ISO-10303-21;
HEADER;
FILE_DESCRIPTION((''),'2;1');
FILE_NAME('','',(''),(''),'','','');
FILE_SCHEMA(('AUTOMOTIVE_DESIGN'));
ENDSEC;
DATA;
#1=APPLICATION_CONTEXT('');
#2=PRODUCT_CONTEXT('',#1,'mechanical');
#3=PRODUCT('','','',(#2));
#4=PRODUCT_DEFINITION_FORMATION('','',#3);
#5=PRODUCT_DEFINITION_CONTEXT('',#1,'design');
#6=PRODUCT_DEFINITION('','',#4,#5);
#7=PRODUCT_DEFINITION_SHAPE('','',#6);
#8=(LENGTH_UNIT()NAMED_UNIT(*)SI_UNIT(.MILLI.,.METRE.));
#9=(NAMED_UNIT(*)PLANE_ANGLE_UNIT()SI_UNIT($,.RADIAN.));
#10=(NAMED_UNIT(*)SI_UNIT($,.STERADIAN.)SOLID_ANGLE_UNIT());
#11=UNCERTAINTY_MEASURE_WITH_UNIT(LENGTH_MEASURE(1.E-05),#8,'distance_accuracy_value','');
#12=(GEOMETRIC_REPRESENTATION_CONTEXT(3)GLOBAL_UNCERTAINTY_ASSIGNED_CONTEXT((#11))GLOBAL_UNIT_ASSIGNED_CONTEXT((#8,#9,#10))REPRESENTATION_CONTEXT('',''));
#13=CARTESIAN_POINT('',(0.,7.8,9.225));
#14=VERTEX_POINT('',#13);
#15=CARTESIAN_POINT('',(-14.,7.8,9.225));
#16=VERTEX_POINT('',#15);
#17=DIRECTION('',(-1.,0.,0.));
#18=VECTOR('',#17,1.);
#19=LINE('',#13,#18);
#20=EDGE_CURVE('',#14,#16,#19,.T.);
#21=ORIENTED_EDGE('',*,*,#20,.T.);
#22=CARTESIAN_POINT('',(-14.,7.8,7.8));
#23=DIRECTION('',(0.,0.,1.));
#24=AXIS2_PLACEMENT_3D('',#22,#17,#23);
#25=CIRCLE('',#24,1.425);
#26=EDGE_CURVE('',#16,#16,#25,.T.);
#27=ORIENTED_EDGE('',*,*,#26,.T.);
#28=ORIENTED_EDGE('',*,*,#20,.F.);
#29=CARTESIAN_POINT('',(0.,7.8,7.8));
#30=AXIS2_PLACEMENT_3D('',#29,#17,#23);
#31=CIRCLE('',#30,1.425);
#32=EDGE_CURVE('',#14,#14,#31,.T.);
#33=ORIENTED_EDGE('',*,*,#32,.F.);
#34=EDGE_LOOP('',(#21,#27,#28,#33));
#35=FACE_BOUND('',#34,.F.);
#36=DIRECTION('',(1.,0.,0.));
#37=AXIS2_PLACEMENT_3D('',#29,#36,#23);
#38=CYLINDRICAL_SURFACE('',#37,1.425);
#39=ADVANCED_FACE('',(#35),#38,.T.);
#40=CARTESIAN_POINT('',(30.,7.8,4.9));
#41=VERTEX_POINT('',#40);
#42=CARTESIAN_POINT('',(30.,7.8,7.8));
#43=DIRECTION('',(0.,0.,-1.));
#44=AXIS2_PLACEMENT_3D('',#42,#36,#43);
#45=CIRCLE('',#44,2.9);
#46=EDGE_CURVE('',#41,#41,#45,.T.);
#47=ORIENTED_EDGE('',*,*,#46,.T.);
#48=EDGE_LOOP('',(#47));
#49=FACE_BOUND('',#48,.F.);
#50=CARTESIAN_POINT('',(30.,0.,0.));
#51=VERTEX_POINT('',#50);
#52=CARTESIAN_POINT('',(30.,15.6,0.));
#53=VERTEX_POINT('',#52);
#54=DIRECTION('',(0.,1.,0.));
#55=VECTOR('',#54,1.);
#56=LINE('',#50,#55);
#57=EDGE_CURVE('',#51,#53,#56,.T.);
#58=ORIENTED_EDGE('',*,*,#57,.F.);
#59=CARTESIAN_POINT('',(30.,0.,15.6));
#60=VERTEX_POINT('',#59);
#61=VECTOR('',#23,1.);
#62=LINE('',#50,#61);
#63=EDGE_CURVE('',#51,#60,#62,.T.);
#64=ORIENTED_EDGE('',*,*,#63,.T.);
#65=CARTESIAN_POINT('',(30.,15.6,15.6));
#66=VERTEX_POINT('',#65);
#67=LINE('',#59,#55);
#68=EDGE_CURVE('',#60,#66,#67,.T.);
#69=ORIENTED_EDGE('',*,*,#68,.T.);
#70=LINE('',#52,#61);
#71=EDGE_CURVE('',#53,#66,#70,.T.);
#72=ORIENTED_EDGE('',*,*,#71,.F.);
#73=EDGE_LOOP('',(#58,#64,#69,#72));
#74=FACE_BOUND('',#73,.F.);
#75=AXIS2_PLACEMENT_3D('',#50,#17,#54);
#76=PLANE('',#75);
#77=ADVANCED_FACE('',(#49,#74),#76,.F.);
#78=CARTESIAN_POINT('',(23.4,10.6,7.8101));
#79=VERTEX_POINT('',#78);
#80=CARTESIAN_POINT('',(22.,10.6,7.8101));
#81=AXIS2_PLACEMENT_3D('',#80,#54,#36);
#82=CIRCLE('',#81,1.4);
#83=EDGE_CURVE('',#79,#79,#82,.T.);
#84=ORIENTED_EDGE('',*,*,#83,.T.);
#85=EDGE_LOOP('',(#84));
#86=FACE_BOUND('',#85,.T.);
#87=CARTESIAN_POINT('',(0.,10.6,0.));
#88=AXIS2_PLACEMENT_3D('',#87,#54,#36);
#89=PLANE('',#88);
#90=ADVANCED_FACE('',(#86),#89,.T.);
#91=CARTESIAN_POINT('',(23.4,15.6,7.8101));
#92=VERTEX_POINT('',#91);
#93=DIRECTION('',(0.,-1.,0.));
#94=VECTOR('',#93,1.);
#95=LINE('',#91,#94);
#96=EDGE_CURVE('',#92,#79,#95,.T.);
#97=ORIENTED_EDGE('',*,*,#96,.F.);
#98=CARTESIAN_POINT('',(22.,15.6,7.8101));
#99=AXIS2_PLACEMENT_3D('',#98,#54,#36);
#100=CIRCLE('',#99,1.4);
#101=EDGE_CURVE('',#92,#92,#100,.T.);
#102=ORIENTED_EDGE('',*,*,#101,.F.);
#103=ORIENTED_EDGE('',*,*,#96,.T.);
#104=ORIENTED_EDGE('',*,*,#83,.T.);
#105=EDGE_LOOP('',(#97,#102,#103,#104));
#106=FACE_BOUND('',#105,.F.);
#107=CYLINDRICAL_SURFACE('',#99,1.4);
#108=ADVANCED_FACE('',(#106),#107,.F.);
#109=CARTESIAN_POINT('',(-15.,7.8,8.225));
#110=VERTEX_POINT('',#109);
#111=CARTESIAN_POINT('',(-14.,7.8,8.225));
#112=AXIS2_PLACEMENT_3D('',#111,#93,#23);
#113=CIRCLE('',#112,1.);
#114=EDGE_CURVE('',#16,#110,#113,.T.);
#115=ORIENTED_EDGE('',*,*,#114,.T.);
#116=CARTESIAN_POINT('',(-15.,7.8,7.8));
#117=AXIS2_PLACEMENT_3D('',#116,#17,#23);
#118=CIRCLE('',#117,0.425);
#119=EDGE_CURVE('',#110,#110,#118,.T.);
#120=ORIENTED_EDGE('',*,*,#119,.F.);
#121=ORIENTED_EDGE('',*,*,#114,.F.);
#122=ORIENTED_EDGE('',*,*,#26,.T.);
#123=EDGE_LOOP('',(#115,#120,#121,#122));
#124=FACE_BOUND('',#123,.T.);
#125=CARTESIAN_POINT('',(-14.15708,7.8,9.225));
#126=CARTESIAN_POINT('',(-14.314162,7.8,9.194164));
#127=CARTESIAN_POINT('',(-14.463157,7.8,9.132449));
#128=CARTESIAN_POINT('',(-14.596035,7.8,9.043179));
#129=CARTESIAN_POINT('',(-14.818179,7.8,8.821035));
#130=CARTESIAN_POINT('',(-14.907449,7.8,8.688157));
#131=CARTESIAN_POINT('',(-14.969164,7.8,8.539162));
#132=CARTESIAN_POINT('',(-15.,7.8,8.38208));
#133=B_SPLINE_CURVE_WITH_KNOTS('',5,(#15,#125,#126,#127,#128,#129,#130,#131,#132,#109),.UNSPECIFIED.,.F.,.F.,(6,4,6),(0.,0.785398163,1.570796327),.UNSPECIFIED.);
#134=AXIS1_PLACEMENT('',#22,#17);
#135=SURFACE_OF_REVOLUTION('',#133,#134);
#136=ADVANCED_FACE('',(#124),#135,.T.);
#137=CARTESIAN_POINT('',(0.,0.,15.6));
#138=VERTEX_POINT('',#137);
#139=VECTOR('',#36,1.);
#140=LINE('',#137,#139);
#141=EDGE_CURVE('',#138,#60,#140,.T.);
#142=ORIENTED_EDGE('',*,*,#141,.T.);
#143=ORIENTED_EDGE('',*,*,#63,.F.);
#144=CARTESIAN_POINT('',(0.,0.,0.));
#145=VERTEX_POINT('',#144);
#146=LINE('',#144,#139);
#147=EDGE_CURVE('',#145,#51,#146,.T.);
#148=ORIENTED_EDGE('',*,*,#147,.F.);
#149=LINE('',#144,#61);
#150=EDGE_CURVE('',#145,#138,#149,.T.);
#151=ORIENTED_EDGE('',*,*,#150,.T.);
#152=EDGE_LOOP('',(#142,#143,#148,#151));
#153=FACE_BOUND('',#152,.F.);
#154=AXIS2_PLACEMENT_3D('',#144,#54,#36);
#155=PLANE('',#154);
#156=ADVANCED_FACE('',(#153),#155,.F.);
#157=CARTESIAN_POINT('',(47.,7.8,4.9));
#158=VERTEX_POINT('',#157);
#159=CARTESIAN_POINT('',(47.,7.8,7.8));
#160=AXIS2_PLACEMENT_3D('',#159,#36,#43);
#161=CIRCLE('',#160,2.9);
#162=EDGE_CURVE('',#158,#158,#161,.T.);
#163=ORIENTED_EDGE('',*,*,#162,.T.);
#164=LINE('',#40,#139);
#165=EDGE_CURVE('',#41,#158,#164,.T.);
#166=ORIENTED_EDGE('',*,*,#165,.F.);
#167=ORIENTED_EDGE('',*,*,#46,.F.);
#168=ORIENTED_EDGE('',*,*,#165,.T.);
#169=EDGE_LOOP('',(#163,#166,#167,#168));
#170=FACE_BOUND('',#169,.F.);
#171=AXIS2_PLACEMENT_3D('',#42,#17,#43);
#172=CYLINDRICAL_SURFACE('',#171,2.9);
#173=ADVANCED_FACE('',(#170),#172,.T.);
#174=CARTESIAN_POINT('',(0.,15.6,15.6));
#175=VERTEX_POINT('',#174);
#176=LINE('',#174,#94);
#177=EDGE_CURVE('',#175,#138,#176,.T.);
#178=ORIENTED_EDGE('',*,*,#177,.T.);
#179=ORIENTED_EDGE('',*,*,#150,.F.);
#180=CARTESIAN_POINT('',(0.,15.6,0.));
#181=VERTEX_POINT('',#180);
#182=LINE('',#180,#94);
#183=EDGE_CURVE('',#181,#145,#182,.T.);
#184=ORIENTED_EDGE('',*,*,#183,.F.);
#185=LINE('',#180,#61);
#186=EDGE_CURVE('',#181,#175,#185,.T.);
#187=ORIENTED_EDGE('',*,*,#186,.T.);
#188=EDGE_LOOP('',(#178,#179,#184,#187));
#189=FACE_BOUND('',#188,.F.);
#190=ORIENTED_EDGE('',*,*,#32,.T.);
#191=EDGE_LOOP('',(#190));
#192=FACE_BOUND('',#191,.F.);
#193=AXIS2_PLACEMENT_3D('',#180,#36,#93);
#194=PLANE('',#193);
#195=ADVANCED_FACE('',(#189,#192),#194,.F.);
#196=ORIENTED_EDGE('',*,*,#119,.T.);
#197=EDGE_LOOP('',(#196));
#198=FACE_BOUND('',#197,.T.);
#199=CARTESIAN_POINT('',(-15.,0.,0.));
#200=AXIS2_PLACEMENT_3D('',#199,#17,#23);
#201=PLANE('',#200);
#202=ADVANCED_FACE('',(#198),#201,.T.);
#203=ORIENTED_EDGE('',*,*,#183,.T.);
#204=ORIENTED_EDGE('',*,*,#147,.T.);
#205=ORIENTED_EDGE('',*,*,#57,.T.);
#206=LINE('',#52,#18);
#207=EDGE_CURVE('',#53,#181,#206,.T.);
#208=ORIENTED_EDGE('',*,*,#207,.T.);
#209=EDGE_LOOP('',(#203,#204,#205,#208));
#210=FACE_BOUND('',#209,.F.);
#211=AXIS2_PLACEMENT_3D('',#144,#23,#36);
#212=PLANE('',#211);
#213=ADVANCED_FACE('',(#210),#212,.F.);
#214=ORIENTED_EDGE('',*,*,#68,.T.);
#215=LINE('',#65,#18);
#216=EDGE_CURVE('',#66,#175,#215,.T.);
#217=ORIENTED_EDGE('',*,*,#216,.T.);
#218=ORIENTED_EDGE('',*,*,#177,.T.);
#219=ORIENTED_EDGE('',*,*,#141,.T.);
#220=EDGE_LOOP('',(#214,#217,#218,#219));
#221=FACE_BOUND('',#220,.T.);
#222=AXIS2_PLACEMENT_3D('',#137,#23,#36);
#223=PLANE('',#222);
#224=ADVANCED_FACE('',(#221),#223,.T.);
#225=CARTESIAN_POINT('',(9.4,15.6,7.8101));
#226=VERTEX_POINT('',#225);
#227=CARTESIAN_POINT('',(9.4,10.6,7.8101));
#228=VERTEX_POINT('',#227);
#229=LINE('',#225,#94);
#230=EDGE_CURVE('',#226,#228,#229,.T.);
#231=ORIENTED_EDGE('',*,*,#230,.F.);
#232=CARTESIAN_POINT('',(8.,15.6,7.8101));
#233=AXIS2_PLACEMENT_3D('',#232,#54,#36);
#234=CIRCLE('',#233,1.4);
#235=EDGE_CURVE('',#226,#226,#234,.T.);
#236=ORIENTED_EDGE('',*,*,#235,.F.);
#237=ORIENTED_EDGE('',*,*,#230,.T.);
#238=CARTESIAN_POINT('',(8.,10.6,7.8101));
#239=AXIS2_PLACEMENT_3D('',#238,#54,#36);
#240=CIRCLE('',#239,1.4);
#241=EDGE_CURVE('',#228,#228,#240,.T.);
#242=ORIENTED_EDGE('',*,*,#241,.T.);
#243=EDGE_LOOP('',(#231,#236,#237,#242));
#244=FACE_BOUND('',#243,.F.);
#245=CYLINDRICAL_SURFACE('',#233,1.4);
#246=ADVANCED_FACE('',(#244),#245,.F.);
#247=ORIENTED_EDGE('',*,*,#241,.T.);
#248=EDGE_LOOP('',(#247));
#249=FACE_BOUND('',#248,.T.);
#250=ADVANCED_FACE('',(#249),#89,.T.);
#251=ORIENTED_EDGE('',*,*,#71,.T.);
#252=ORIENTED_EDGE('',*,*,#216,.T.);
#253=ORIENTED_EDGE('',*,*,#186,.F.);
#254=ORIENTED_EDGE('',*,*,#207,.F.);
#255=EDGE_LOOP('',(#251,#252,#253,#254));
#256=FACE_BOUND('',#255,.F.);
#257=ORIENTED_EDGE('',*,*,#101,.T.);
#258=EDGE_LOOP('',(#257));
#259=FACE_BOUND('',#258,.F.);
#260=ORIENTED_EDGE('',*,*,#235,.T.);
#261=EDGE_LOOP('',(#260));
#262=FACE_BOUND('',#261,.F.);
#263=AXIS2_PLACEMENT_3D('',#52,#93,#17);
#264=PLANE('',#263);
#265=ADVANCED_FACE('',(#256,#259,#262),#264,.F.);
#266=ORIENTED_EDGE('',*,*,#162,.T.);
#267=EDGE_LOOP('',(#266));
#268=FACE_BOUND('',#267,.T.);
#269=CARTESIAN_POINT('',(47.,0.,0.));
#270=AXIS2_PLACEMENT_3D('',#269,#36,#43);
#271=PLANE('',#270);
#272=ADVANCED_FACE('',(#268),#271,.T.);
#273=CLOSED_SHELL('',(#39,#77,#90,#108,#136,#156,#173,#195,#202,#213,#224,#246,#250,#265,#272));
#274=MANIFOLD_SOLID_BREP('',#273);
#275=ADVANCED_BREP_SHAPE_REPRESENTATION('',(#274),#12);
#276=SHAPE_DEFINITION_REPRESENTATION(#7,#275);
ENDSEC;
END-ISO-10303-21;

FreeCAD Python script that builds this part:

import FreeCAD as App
import Part
import Sketcher

V = App.Vector


def edges_at(feature, points):
    """Names of the edges that pass closest to the given points."""
    edges = feature.Shape.Edges
    near = lambda p: min(range(len(edges)), key=lambda i: edges[i].distToShape(Part.Vertex(*p))[0])
    return sorted({f"Edge{near(p) + 1}" for p in points})


def add_polygon(sketch, points):
    """Adds a closed chain of lines whose ends are joined by coincident constraints."""
    first, n = sketch.GeometryCount, len(points)
    for a, b in zip(points, points[1:] + points[:1]):
        sketch.addGeometry(Part.LineSegment(App.Vector(*a, 0), App.Vector(*b, 0)), False)
    for i in range(n):
        sketch.addConstraint(Sketcher.Constraint("Coincident", first + i, 2, first + (i + 1) % n, 1))

doc = App.newDocument("Part")
body = doc.addObject("PartDesign::Body", "Body")

sketch1 = doc.addObject("Sketcher::SketchObject", "Sketch")
body.addObject(sketch1)
sketch1.AttachmentSupport = (doc.XY_Plane, [""])
sketch1.MapMode = "FlatFace"
add_polygon(sketch1, [(0, 16), (0, 0), (30, 0), (30, 16)])
sketch1.addConstraint([
    Sketcher.Constraint("Vertical", 0),
    Sketcher.Constraint("Horizontal", 1),
    Sketcher.Constraint("Vertical", 2),
    Sketcher.Constraint("Horizontal", 3),
    Sketcher.Constraint("Coincident", 0, 2, -1, 1),
    Sketcher.Constraint("DistanceX", 1, 1, 1, 2, 30.0),
    Sketcher.Constraint("DistanceY", 0, 2, 0, 1, 15.6),
])
pad1 = doc.addObject("PartDesign::Pad", "Pad")
body.addObject(pad1)
pad1.Profile = sketch1
pad1.Length = 15.6

sketch2 = doc.addObject("Sketcher::SketchObject", "Sketch001")
body.addObject(sketch2)
sketch2.AttachmentSupport = (doc.YZ_Plane, [""])
sketch2.MapMode = "FlatFace"
sketch2.AttachmentOffset = App.Placement(V(0, 0, 30), App.Rotation())
sketch2.addGeometry(Part.Circle(V(7.8, 7.8, 0), V(0, 0, 1), 2.9), False)
sketch2.addConstraint([
    Sketcher.Constraint("Diameter", 0, 5.8),
    Sketcher.Constraint("DistanceX", -1, 1, 0, 3, 7.8),
    Sketcher.Constraint("DistanceY", -1, 1, 0, 3, 7.8),
])
pad2 = doc.addObject("PartDesign::Pad", "Pad001")
body.addObject(pad2)
pad2.Profile = sketch2
pad2.Length = 17

sketch3 = doc.addObject("Sketcher::SketchObject", "Sketch002")
body.addObject(sketch3)
sketch3.AttachmentSupport = (doc.YZ_Plane, [""])
sketch3.MapMode = "FlatFace"
sketch3.addGeometry(Part.Circle(V(7.8, 7.8, 0), V(0, 0, 1), 1.4), False)
sketch3.addConstraint([
    Sketcher.Constraint("Diameter", 0, 2.85),
    Sketcher.Constraint("DistanceX", -1, 1, 0, 3, 7.8),
    Sketcher.Constraint("DistanceY", -1, 1, 0, 3, 7.8),
])
pad3 = doc.addObject("PartDesign::Pad", "Pad002")
body.addObject(pad3)
pad3.Profile = sketch3
pad3.Length = 15
pad3.Reversed = True
doc.recompute()

fillet = doc.addObject("PartDesign::Fillet", "Fillet")
body.addObject(fillet)
fillet.Base = (pad3, edges_at(pad3, [(-15, 7.8, 6.375)]))
fillet.Radius = 1

sketch4 = doc.addObject("Sketcher::SketchObject", "Sketch003")
body.addObject(sketch4)
sketch4.AttachmentSupport = (doc.XZ_Plane, [""])
sketch4.MapMode = "FlatFace"
sketch4.AttachmentOffset = App.Placement(V(0, 0, -15.6), App.Rotation())
sketch4.addGeometry([
    Part.Circle(V(8, 7.8, 0), V(0, 0, 1), 1.4),
    Part.Circle(V(22, 7.8, 0), V(0, 0, 1), 1.4),
], False)
sketch4.addConstraint([
    Sketcher.Constraint("Equal", 0, 1),
    Sketcher.Constraint("Horizontal", 0, 3, 1, 3),
    Sketcher.Constraint("Diameter", 0, 2.8),
    Sketcher.Constraint("DistanceX", -1, 1, 0, 3, 8.0),
    Sketcher.Constraint("DistanceX", -1, 1, 1, 3, 22.0),
    Sketcher.Constraint("DistanceY", -1, 1, 0, 3, 7.81),
])
pocket1 = doc.addObject("PartDesign::Pocket", "Pocket")
body.addObject(pocket1)
pocket1.Profile = sketch4
pocket1.Length = 5
pocket1.Reversed = True

doc.recompute()
